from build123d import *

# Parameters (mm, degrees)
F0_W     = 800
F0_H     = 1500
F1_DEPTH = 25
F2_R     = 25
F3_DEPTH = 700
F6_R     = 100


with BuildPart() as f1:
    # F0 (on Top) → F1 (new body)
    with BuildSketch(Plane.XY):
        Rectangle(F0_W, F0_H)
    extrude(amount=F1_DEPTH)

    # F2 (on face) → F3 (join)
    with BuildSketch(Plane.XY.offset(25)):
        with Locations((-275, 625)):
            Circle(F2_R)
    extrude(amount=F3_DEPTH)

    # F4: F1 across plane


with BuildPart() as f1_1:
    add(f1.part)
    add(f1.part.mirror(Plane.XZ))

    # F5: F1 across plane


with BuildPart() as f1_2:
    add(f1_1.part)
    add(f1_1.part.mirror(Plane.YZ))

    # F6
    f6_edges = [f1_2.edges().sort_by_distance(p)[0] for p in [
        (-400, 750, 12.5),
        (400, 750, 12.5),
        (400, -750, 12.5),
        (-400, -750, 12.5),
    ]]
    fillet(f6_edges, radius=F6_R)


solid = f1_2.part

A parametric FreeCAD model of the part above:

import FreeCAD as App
import Part
import Sketcher
from FreeCAD import Vector


def edges_at(feature, points):
    """Names of the edges that pass closest to the given points."""
    edges = feature.Shape.Edges
    near = lambda p: min(range(len(edges)), key=lambda i: edges[i].distToShape(Part.Vertex(*p))[0])
    return sorted({f"Edge{near(p) + 1}" for p in points})

doc = App.newDocument("Part")
body = doc.addObject("PartDesign::Body", "Body")

sketch1 = doc.addObject("Sketcher::SketchObject", "Sketch")
body.addObject(sketch1)
sketch1.AttachmentSupport = (doc.XY_Plane, [""])
sketch1.MapMode = "FlatFace"
sketch1.addGeometry([
    Part.LineSegment(Vector(-400, 750, 0), Vector(-400, -750, 0)),
    Part.LineSegment(Vector(-400, -750, 0), Vector(400, -750, 0)),
    Part.LineSegment(Vector(400, -750, 0), Vector(400, 750, 0)),
    Part.LineSegment(Vector(400, 750, 0), Vector(-400, 750, 0)),
], False)
sketch1.addConstraint([
    Sketcher.Constraint("Coincident", 0, 2, 1, 1),
    Sketcher.Constraint("Coincident", 1, 2, 2, 1),
    Sketcher.Constraint("Coincident", 2, 2, 3, 1),
    Sketcher.Constraint("Coincident", 3, 2, 0, 1),
    Sketcher.Constraint("Vertical", 0),
    Sketcher.Constraint("Horizontal", 1),
    Sketcher.Constraint("Vertical", 2),
    Sketcher.Constraint("Horizontal", 3),
    Sketcher.Constraint("Symmetric", 0, 2, 2, 2, -1, 1),
    Sketcher.Constraint("DistanceX", 1, 1, 1, 2, 800.0),
    Sketcher.Constraint("DistanceY", 0, 2, 0, 1, 1500.0),
])
pad1 = doc.addObject("PartDesign::Pad", "Pad")
body.addObject(pad1)
pad1.Profile = sketch1
pad1.Length = 25

sketch2 = doc.addObject("Sketcher::SketchObject", "Sketch001")
body.addObject(sketch2)
sketch2.AttachmentSupport = (doc.XY_Plane, [""])
sketch2.MapMode = "FlatFace"
sketch2.AttachmentOffset = App.Placement(Vector(0, 0, 25), App.Rotation())
sketch2.addGeometry(Part.Circle(Vector(-275, 625, 0), Vector(0, 0, 1), 25), False)
sketch2.addConstraint([
    Sketcher.Constraint("Diameter", 0, 50.0),
    Sketcher.Constraint("DistanceX", 0, 3, -1, 1, 275.0),
    Sketcher.Constraint("DistanceY", -1, 1, 0, 3, 625.0),
])
pad2 = doc.addObject("PartDesign::Pad", "Pad001")
body.addObject(pad2)
pad2.Profile = sketch2
pad2.Length = 700
body2 = doc.addObject("PartDesign::Body", "Body001")
doc.recompute()

body2.BaseFeature = body
doc.recompute()

mirroring = doc.addObject("Part::Mirroring", "Mirroring")
mirroring.Source = body
mirroring.Base = Vector(0, 0, 0)
mirroring.Normal = Vector(0, -1, 0)
body3 = doc.addObject("PartDesign::Body", "Body002")
body3.BaseFeature = mirroring
boolean = doc.addObject("PartDesign::Boolean", "Boolean")
body2.addObject(boolean)
boolean.Type = "Fuse"
boolean.addObjects([body3])
doc.recompute()
body4 = doc.addObject("PartDesign::Body", "Body003")
doc.recompute()

body4.BaseFeature = body2
doc.recompute()

mirroring2 = doc.addObject("Part::Mirroring", "Mirroring001")
mirroring2.Source = body2
mirroring2.Base = Vector(0, 0, 0)
mirroring2.Normal = Vector(1, 0, 0)
body5 = doc.addObject("PartDesign::Body", "Body004")
body5.BaseFeature = mirroring2
boolean2 = doc.addObject("PartDesign::Boolean", "Boolean001")
body4.addObject(boolean2)
boolean2.Type = "Fuse"
boolean2.addObjects([body5])
doc.recompute()

fillet = doc.addObject("PartDesign::Fillet", "Fillet")
body4.addObject(fillet)
fillet.Base = (boolean2, edges_at(boolean2, [
    (-400, 750, 12.5),
    (400, 750, 12.5),
    (400, -750, 12.5),
    (-400, -750, 12.5),
]))
fillet.Radius = 100
mirroring.Visibility = False
mirroring2.Visibility = False

doc.recompute()
